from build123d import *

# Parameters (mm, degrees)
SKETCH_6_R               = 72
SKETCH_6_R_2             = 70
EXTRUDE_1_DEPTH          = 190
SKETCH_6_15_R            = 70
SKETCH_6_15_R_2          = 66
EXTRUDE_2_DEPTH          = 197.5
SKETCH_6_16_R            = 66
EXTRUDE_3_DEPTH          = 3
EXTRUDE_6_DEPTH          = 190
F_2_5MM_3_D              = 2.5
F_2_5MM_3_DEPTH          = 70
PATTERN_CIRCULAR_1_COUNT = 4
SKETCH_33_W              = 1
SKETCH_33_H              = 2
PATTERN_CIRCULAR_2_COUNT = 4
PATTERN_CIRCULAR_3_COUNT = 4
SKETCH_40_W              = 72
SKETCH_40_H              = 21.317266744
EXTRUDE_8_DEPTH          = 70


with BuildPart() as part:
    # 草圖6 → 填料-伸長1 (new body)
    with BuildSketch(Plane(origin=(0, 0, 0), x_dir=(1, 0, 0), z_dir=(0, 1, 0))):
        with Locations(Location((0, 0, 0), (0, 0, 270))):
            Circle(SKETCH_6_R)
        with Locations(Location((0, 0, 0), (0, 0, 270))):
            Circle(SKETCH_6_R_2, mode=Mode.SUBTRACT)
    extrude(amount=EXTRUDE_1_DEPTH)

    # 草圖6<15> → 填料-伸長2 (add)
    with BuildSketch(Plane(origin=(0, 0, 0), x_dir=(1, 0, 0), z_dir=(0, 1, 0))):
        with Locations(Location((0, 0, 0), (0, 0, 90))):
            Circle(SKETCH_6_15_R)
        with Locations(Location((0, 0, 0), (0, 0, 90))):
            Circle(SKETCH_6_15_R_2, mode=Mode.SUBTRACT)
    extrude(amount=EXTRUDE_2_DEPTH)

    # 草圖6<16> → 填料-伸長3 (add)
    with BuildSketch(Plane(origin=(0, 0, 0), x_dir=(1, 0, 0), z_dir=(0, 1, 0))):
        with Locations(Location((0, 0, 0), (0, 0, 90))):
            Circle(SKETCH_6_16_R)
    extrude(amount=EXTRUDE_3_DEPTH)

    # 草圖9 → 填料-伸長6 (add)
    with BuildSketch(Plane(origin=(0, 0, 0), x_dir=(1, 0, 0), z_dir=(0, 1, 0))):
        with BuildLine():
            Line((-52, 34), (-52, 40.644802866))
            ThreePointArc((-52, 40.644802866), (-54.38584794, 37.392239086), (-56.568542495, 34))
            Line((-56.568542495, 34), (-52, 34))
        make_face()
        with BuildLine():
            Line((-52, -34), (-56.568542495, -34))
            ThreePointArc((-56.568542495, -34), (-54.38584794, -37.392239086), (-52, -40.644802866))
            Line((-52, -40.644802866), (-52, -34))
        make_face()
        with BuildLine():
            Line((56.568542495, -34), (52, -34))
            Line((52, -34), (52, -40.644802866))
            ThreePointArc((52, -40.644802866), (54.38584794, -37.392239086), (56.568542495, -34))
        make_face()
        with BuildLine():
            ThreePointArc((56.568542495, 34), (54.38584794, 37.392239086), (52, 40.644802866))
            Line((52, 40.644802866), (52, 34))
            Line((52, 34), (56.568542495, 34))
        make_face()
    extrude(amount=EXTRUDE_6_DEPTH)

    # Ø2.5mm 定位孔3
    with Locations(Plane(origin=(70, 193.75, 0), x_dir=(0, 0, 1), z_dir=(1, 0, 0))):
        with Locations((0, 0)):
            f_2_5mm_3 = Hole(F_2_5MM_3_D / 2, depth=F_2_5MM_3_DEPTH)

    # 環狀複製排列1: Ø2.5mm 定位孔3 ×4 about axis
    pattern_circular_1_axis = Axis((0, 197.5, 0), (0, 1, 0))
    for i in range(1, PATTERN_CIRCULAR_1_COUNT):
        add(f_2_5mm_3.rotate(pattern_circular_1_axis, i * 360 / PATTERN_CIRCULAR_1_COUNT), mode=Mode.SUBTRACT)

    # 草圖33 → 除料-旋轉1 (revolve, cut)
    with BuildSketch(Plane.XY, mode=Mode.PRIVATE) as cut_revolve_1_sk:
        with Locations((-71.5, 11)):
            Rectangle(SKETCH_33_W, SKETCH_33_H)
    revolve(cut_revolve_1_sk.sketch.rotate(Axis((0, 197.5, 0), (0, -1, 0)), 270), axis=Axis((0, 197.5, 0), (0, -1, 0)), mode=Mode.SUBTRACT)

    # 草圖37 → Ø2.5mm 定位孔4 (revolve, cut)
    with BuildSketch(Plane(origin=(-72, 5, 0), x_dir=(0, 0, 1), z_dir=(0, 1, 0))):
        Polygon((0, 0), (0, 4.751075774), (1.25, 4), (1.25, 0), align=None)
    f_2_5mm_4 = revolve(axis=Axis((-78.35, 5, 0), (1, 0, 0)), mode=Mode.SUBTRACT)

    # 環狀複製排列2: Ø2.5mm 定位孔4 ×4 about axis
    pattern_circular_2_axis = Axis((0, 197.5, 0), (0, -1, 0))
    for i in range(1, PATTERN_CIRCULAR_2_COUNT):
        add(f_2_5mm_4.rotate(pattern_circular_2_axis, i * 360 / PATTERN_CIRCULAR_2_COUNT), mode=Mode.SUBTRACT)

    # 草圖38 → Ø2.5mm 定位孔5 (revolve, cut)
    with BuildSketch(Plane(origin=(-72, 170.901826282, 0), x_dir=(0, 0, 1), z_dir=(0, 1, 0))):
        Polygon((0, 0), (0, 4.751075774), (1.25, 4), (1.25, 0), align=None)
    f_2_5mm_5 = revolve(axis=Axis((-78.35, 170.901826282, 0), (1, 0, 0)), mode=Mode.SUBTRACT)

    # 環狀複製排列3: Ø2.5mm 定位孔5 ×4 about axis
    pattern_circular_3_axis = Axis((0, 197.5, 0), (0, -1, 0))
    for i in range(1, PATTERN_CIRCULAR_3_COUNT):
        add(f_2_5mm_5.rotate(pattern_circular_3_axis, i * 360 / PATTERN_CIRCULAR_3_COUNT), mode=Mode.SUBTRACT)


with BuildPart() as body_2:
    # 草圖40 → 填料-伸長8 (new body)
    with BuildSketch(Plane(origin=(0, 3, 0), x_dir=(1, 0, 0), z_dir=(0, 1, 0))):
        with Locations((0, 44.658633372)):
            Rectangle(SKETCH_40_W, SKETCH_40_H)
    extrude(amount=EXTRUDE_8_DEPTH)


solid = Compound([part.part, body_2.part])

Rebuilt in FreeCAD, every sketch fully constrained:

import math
import FreeCAD as App
import Part
import Sketcher
Q = App.Units.Quantity


def add_polygon(sketch, points):
    """Adds a closed chain of lines whose ends are joined by coincident constraints."""
    first, n = sketch.GeometryCount, len(points)
    for a, b in zip(points, points[1:] + points[:1]):
        sketch.addGeometry(Part.LineSegment(App.Vector(*a, 0), App.Vector(*b, 0)), False)
    for i in range(n):
        sketch.addConstraint(Sketcher.Constraint("Coincident", first + i, 2, first + (i + 1) % n, 1))

doc = App.newDocument("Part")
body = doc.addObject("PartDesign::Body", "Body")

# Sketch on XZ plane
sketch1 = doc.addObject("Sketcher::SketchObject", "Sketch")
body.addObject(sketch1)
sketch1.AttachmentSupport = (doc.XZ_Plane, [""])
sketch1.MapMode = "FlatFace"
sketch1.addGeometry(Part.Circle(App.Vector(0, 0, 0), App.Vector(0, 0, 1), 72), False)
sketch1.addGeometry(Part.Circle(App.Vector(0, 0, 0), App.Vector(0, 0, 1), 70), False)
sketch1.addConstraint(Sketcher.Constraint("Coincident", 0, 3, -1, 1))
sketch1.addConstraint(Sketcher.Constraint("Coincident", 1, 3, -1, 1))
sketch1.addConstraint(Sketcher.Constraint("Diameter", 0, Q("144 mm")))
sketch1.addConstraint(Sketcher.Constraint("Diameter", 1, Q("140 mm")))
pad1 = doc.addObject("PartDesign::Pad", "Pad")
body.addObject(pad1)
pad1.Profile = sketch1
pad1.Length = 190
pad1.Reversed = True

# Sketch on XZ plane
sketch2 = doc.addObject("Sketcher::SketchObject", "Sketch001")
body.addObject(sketch2)
sketch2.AttachmentSupport = (doc.XZ_Plane, [""])
sketch2.MapMode = "FlatFace"
sketch2.addGeometry(Part.Circle(App.Vector(0, 0, 0), App.Vector(0, 0, 1), 70), False)
sketch2.addGeometry(Part.Circle(App.Vector(0, 0, 0), App.Vector(0, 0, 1), 66), False)
sketch2.addConstraint(Sketcher.Constraint("Coincident", 0, 3, -1, 1))
sketch2.addConstraint(Sketcher.Constraint("Coincident", 1, 3, -1, 1))
sketch2.addConstraint(Sketcher.Constraint("Diameter", 0, Q("140 mm")))
sketch2.addConstraint(Sketcher.Constraint("Diameter", 1, Q("132 mm")))
pad2 = doc.addObject("PartDesign::Pad", "Pad001")
body.addObject(pad2)
pad2.Profile = sketch2
pad2.Length = 197.5
pad2.Reversed = True

# Sketch on XZ plane
sketch3 = doc.addObject("Sketcher::SketchObject", "Sketch002")
body.addObject(sketch3)
sketch3.AttachmentSupport = (doc.XZ_Plane, [""])
sketch3.MapMode = "FlatFace"
sketch3.addGeometry(Part.Circle(App.Vector(0, 0, 0), App.Vector(0, 0, 1), 66), False)
sketch3.addConstraint(Sketcher.Constraint("Coincident", 0, 3, -1, 1))
sketch3.addConstraint(Sketcher.Constraint("Diameter", 0, Q("132 mm")))
pad3 = doc.addObject("PartDesign::Pad", "Pad002")
body.addObject(pad3)
pad3.Profile = sketch3
pad3.Length = 3
pad3.Reversed = True

# Sketch on XZ plane
sketch4 = doc.addObject("Sketcher::SketchObject", "Sketch003")
body.addObject(sketch4)
sketch4.AttachmentSupport = (doc.XZ_Plane, [""])
sketch4.MapMode = "FlatFace"
sketch4.addGeometry(Part.LineSegment(App.Vector(-52, -34, 0), App.Vector(-52, -40.644803, 0)), False)
sketch4.addGeometry(Part.ArcOfCircle(Part.Circle(App.Vector(0, 0, 0), App.Vector(0, 0, 1), 66), math.radians(-148.992417), math.radians(-141.98772)), False)
sketch4.addGeometry(Part.LineSegment(App.Vector(-56.568542, -34, 0), App.Vector(-52, -34, 0)), False)
sketch4.addGeometry(Part.LineSegment(App.Vector(-52, 34, 0), App.Vector(-56.568542, 34, 0)), False)
sketch4.addGeometry(Part.ArcOfCircle(Part.Circle(App.Vector(0, 0, 0), App.Vector(0, 0, 1), 66), math.radians(141.98772), math.radians(148.992417)), False)
sketch4.addGeometry(Part.LineSegment(App.Vector(-52, 40.644803, 0), App.Vector(-52, 34, 0)), False)
sketch4.addGeometry(Part.LineSegment(App.Vector(56.568542, 34, 0), App.Vector(52, 34, 0)), False)
sketch4.addGeometry(Part.LineSegment(App.Vector(52, 34, 0), App.Vector(52, 40.644803, 0)), False)
sketch4.addGeometry(Part.ArcOfCircle(Part.Circle(App.Vector(0, 0, 0), App.Vector(0, 0, 1), 66), math.radians(31.007583), math.radians(38.01228)), False)
sketch4.addGeometry(Part.ArcOfCircle(Part.Circle(App.Vector(0, 0, 0), App.Vector(0, 0, 1), 66), math.radians(-38.01228), math.radians(-31.007583)), False)
sketch4.addGeometry(Part.LineSegment(App.Vector(52, -40.644803, 0), App.Vector(52, -34, 0)), False)
sketch4.addGeometry(Part.LineSegment(App.Vector(52, -34, 0), App.Vector(56.568542, -34, 0)), False)
sketch4.addConstraint(Sketcher.Constraint("Coincident", 0, 2, 1, 2))
sketch4.addConstraint(Sketcher.Constraint("Coincident", 1, 1, 2, 1))
sketch4.addConstraint(Sketcher.Constraint("Coincident", 2, 2, 0, 1))
sketch4.addConstraint(Sketcher.Constraint("Coincident", 3, 2, 4, 2))
sketch4.addConstraint(Sketcher.Constraint("Coincident", 4, 1, 5, 1))
sketch4.addConstraint(Sketcher.Constraint("Coincident", 5, 2, 3, 1))
sketch4.addConstraint(Sketcher.Constraint("Coincident", 6, 2, 7, 1))
sketch4.addConstraint(Sketcher.Constraint("Coincident", 7, 2, 8, 2))
sketch4.addConstraint(Sketcher.Constraint("Coincident", 8, 1, 6, 1))
sketch4.addConstraint(Sketcher.Constraint("Coincident", 9, 1, 10, 1))
sketch4.addConstraint(Sketcher.Constraint("Coincident", 10, 2, 11, 1))
sketch4.addConstraint(Sketcher.Constraint("Coincident", 11, 2, 9, 2))
sketch4.addConstraint(Sketcher.Constraint("Vertical", 0))
sketch4.addConstraint(Sketcher.Constraint("Horizontal", 2))
sketch4.addConstraint(Sketcher.Constraint("Horizontal", 3))
sketch4.addConstraint(Sketcher.Constraint("Vertical", 5))
sketch4.addConstraint(Sketcher.Constraint("Horizontal", 6))
sketch4.addConstraint(Sketcher.Constraint("Vertical", 7))
sketch4.addConstraint(Sketcher.Constraint("Vertical", 10))
sketch4.addConstraint(Sketcher.Constraint("Horizontal", 11))
sketch4.addConstraint(Sketcher.Constraint("Coincident", 1, 3, -1, 1))
sketch4.addConstraint(Sketcher.Constraint("Coincident", 4, 3, -1, 1))
sketch4.addConstraint(Sketcher.Constraint("Coincident", 8, 3, -1, 1))
sketch4.addConstraint(Sketcher.Constraint("Coincident", 9, 3, -1, 1))
sketch4.addConstraint(Sketcher.Constraint("Equal", 1, 4))
sketch4.addConstraint(Sketcher.Constraint("Equal", 4, 8))
sketch4.addConstraint(Sketcher.Constraint("Equal", 8, 9))
sketch4.addConstraint(Sketcher.Constraint("Symmetric", 2, 2, 6, 2, -1, 1))
sketch4.addConstraint(Sketcher.Constraint("Symmetric", 5, 2, 10, 2, -1, 1))
sketch4.addConstraint(Sketcher.Constraint("Symmetric", 5, 2, 6, 2, -2))
sketch4.addConstraint(Sketcher.Constraint("Radius", 1, Q("66 mm")))
sketch4.addConstraint(Sketcher.Constraint("DistanceX", 0, 2, -1, 1, Q("52 mm")))
sketch4.addConstraint(Sketcher.Constraint("DistanceY", 1, 1, -1, 1, Q("34 mm")))
pad4 = doc.addObject("PartDesign::Pad", "Pad003")
body.addObject(pad4)
pad4.Profile = sketch4
pad4.Length = 190
pad4.Reversed = True

# Sketch on YZ plane
sketch5 = doc.addObject("Sketcher::SketchObject", "Sketch004")
body.addObject(sketch5)
sketch5.AttachmentSupport = (doc.YZ_Plane, [""])
sketch5.MapMode = "FlatFace"
sketch5.AttachmentOffset = App.Placement(App.Vector(0, 0, 70), App.Rotation())
sketch5.addGeometry(Part.Circle(App.Vector(193.75, 0, 0), App.Vector(0, 0, 1), 1.25), False)
sketch5.addConstraint(Sketcher.Constraint("PointOnObject", 0, 3, -1))
sketch5.addConstraint(Sketcher.Constraint("Diameter", 0, Q("2.5 mm")))
sketch5.addConstraint(Sketcher.Constraint("DistanceX", -1, 1, 0, 3, Q("193.75 mm")))
doc.recompute()
hole = doc.addObject("PartDesign::Hole", "Hole")
body.addObject(hole)
hole.Profile = sketch5
hole.ThreadType = "None"
hole.Diameter = 2.5
hole.DepthType = "Dimension"
hole.Depth = 70
hole.DrillPoint = "Flat"
doc.recompute()

polarpattern = doc.addObject("PartDesign::PolarPattern", "PolarPattern")
body.addObject(polarpattern)
polarpattern.Originals = [hole]
polarpattern.Axis = (doc.Y_Axis, [""])
polarpattern.Angle = 360
polarpattern.Occurrences = 4
body.Tip = polarpattern

# Sketch on XY plane
sketch6 = doc.addObject("Sketcher::SketchObject", "Sketch005")
body.addObject(sketch6)
sketch6.AttachmentSupport = (doc.XY_Plane, [""])
sketch6.MapMode = "FlatFace"
add_polygon(sketch6, [(-72, 12), (-72, 10), (-71, 10), (-71, 12)])  # lines 0-3
sketch6.addConstraint(Sketcher.Constraint("Vertical", 0))
sketch6.addConstraint(Sketcher.Constraint("Horizontal", 1))
sketch6.addConstraint(Sketcher.Constraint("Vertical", 2))
sketch6.addConstraint(Sketcher.Constraint("Horizontal", 3))
sketch6.addConstraint(Sketcher.Constraint("DistanceX", 1, 1, 1, 2, Q("1 mm")))
sketch6.addConstraint(Sketcher.Constraint("DistanceY", 0, 2, 0, 1, Q("2 mm")))
sketch6.addConstraint(Sketcher.Constraint("DistanceX", 0, 2, -1, 1, Q("72 mm")))
sketch6.addConstraint(Sketcher.Constraint("DistanceY", -1, 1, 0, 2, Q("10 mm")))
groove = doc.addObject("PartDesign::Groove", "Groove")
body.addObject(groove)
groove.Profile = sketch6
groove.ReferenceAxis = (sketch6, ["V_Axis"])
groove.Angle = 360

# Sketch on XZ plane
sketch7 = doc.addObject("Sketcher::SketchObject", "Sketch006")
body.addObject(sketch7)
sketch7.AttachmentSupport = (doc.XZ_Plane, [""])
sketch7.MapMode = "FlatFace"
sketch7.AttachmentOffset = App.Placement(App.Vector(0, 0, -5), App.Rotation())
add_polygon(sketch7, [(-67.248924, 0), (-72, 0), (-72, 1.25), (-68, 1.25)])  # lines 0-3
sketch7.addConstraint(Sketcher.Constraint("Horizontal", 0))
sketch7.addConstraint(Sketcher.Constraint("Vertical", 1))
sketch7.addConstraint(Sketcher.Constraint("Horizontal", 2))
sketch7.addConstraint(Sketcher.Constraint("PointOnObject", 0, 2, -1))
sketch7.addConstraint(Sketcher.Constraint("DistanceX", 2, 1, 2, 2, Q("4 mm")))
sketch7.addConstraint(Sketcher.Constraint("Angle", 3, Q("-59 deg")))
sketch7.addConstraint(Sketcher.Constraint("DistanceX", 0, 2, -1, 1, Q("72 mm")))
sketch7.addConstraint(Sketcher.Constraint("DistanceY", 1, 1, 1, 2, Q("1.25 mm")))
groove2 = doc.addObject("PartDesign::Groove", "Groove001")
body.addObject(groove2)
groove2.Profile = sketch7
groove2.ReferenceAxis = (sketch7, ["H_Axis"])
groove2.Angle = 360
doc.recompute()

polarpattern2 = doc.addObject("PartDesign::PolarPattern", "PolarPattern001")
body.addObject(polarpattern2)
polarpattern2.Originals = [groove2]
polarpattern2.Axis = (doc.Y_Axis, [""])
polarpattern2.Angle = 360
polarpattern2.Occurrences = 4
body.Tip = polarpattern2

# Sketch on XZ plane
sketch8 = doc.addObject("Sketcher::SketchObject", "Sketch007")
body.addObject(sketch8)
sketch8.AttachmentSupport = (doc.XZ_Plane, [""])
sketch8.MapMode = "FlatFace"
sketch8.AttachmentOffset = App.Placement(App.Vector(0, 0, -170.901826), App.Rotation())
add_polygon(sketch8, [(-67.248924, 0), (-72, 0), (-72, 1.25), (-68, 1.25)])  # lines 0-3
sketch8.addConstraint(Sketcher.Constraint("Horizontal", 0))
sketch8.addConstraint(Sketcher.Constraint("Vertical", 1))
sketch8.addConstraint(Sketcher.Constraint("Horizontal", 2))
sketch8.addConstraint(Sketcher.Constraint("PointOnObject", 0, 2, -1))
sketch8.addConstraint(Sketcher.Constraint("DistanceX", 2, 1, 2, 2, Q("4 mm")))
sketch8.addConstraint(Sketcher.Constraint("Angle", 3, Q("-59 deg")))
sketch8.addConstraint(Sketcher.Constraint("DistanceX", 0, 2, -1, 1, Q("72 mm")))
sketch8.addConstraint(Sketcher.Constraint("DistanceY", 1, 1, 1, 2, Q("1.25 mm")))
groove3 = doc.addObject("PartDesign::Groove", "Groove002")
body.addObject(groove3)
groove3.Profile = sketch8
groove3.ReferenceAxis = (sketch8, ["H_Axis"])
groove3.Angle = 360
doc.recompute()

polarpattern3 = doc.addObject("PartDesign::PolarPattern", "PolarPattern002")
body.addObject(polarpattern3)
polarpattern3.Originals = [groove3]
polarpattern3.Axis = (doc.Y_Axis, [""])
polarpattern3.Angle = 360
polarpattern3.Occurrences = 4
body.Tip = polarpattern3
body2 = doc.addObject("PartDesign::Body", "Body001")

# Sketch on XZ plane
sketch9 = doc.addObject("Sketcher::SketchObject", "Sketch008")
body2.addObject(sketch9)
sketch9.AttachmentSupport = (doc.getObject("XZ_Plane001"), [""])
sketch9.MapMode = "FlatFace"
sketch9.AttachmentOffset = App.Placement(App.Vector(0, 0, -3), App.Rotation())
add_polygon(sketch9, [(-36, -55.317267), (-36, -34), (36, -34), (36, -55.317267)])  # lines 0-3
sketch9.addConstraint(Sketcher.Constraint("Vertical", 0))
sketch9.addConstraint(Sketcher.Constraint("Horizontal", 1))
sketch9.addConstraint(Sketcher.Constraint("Vertical", 2))
sketch9.addConstraint(Sketcher.Constraint("Horizontal", 3))
sketch9.addConstraint(Sketcher.Constraint("DistanceX", 1, 1, 1, 2, Q("72 mm")))
sketch9.addConstraint(Sketcher.Constraint("DistanceX", 0, 2, -1, 1, Q("36 mm")))
sketch9.addConstraint(Sketcher.Constraint("DistanceY", 0, 2, -1, 1, Q("34 mm")))
sketch9.addConstraint(Sketcher.Constraint("DistanceY", 0, 1, 0, 2, Q("21.317267 mm")))
pad5 = doc.addObject("PartDesign::Pad", "Pad004")
body2.addObject(pad5)
pad5.Profile = sketch9
pad5.Length = 70
pad5.Reversed = True

doc.recompute()
